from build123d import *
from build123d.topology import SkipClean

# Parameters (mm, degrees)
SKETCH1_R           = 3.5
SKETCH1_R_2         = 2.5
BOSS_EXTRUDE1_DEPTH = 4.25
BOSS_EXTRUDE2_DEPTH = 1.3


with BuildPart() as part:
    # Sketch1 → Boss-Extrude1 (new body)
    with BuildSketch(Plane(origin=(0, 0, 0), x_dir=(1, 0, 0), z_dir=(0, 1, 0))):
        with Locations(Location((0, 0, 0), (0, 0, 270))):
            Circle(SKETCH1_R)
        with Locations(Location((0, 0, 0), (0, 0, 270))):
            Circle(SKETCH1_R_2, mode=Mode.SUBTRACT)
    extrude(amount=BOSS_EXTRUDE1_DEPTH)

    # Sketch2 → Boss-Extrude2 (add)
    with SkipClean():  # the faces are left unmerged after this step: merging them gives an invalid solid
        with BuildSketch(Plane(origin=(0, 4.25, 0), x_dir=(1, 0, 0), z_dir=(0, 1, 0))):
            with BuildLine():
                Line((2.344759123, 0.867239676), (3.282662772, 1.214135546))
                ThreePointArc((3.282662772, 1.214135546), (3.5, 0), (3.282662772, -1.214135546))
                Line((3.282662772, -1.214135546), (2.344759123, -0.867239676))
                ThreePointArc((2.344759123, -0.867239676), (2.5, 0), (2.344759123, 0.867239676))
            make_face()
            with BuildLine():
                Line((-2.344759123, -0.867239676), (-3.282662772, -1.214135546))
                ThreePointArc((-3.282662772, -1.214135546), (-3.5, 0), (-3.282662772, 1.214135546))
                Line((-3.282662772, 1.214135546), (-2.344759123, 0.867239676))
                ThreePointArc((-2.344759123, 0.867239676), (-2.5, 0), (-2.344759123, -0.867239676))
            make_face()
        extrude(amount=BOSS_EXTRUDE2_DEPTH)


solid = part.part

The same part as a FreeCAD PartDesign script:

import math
import FreeCAD as App
import Part
import Sketcher

doc = App.newDocument("Part")
body = doc.addObject("PartDesign::Body", "Body")

# Sketch on XZ plane
sketch1 = doc.addObject("Sketcher::SketchObject", "Sketch")
body.addObject(sketch1)
sketch1.AttachmentSupport = (doc.XZ_Plane, [""])
sketch1.MapMode = "FlatFace"
sketch1.addGeometry(Part.Circle(App.Vector(0, 0, 0), App.Vector(0, 0, 1), 3.5), False)
sketch1.addGeometry(Part.Circle(App.Vector(0, 0, 0), App.Vector(0, 0, 1), 2.5), False)
sketch1.addConstraint(Sketcher.Constraint("Coincident", 0, 3, -1, 1))
sketch1.addConstraint(Sketcher.Constraint("Coincident", 1, 3, -1, 1))
sketch1.addConstraint(Sketcher.Constraint("Diameter", 0, 7.0))
sketch1.addConstraint(Sketcher.Constraint("Diameter", 1, 5.0))
pad1 = doc.addObject("PartDesign::Pad", "Pad")
body.addObject(pad1)
pad1.Profile = sketch1
pad1.Length = 4.25
pad1.Reversed = True

# Sketch on XZ plane
sketch2 = doc.addObject("Sketcher::SketchObject", "Sketch001")
body.addObject(sketch2)
sketch2.AttachmentSupport = (doc.XZ_Plane, [""])
sketch2.MapMode = "FlatFace"
sketch2.AttachmentOffset = App.Placement(App.Vector(0, 0, -4.25), App.Rotation())
sketch2.addGeometry(Part.LineSegment(App.Vector(3.3, -1.2, 0), App.Vector(2.3, -0.9, 0)), False)
sketch2.addGeometry(Part.ArcOfCircle(Part.Circle(App.Vector(0, 0, 0), App.Vector(0, 0, 1), 2.5), math.radians(-20), math.radians(20)), False)
sketch2.addGeometry(Part.LineSegment(App.Vector(2.3, 0.9, 0), App.Vector(3.3, 1.2, 0)), False)
sketch2.addGeometry(Part.ArcOfCircle(Part.Circle(App.Vector(0, 0, 0), App.Vector(0, 0, 1), 3.5), math.radians(-20), math.radians(20)), False)
sketch2.addGeometry(Part.LineSegment(App.Vector(-3.3, 1.2, 0), App.Vector(-2.3, 0.9, 0)), False)
sketch2.addGeometry(Part.ArcOfCircle(Part.Circle(App.Vector(0, 0, 0), App.Vector(0, 0, 1), 2.5), math.radians(160), math.radians(200)), False)
sketch2.addGeometry(Part.LineSegment(App.Vector(-2.3, -0.9, 0), App.Vector(-3.3, -1.2, 0)), False)
sketch2.addGeometry(Part.ArcOfCircle(Part.Circle(App.Vector(0, 0, 0), App.Vector(0, 0, 1), 3.5), math.radians(160), math.radians(200)), False)
sketch2.addConstraint(Sketcher.Constraint("Coincident", 0, 2, 1, 1))
sketch2.addConstraint(Sketcher.Constraint("Coincident", 1, 2, 2, 1))
sketch2.addConstraint(Sketcher.Constraint("Coincident", 2, 2, 3, 2))
sketch2.addConstraint(Sketcher.Constraint("Coincident", 3, 1, 0, 1))
sketch2.addConstraint(Sketcher.Constraint("Coincident", 4, 2, 5, 1))
sketch2.addConstraint(Sketcher.Constraint("Coincident", 5, 2, 6, 1))
sketch2.addConstraint(Sketcher.Constraint("Coincident", 6, 2, 7, 2))
sketch2.addConstraint(Sketcher.Constraint("Coincident", 7, 1, 4, 1))
sketch2.addConstraint(Sketcher.Constraint("Coincident", 1, 3, -1, 1))
sketch2.addConstraint(Sketcher.Constraint("Coincident", 3, 3, -1, 1))
sketch2.addConstraint(Sketcher.Constraint("Coincident", 5, 3, -1, 1))
sketch2.addConstraint(Sketcher.Constraint("Coincident", 7, 3, -1, 1))
sketch2.addConstraint(Sketcher.Constraint("Equal", 1, 5))
sketch2.addConstraint(Sketcher.Constraint("Equal", 3, 7))
sketch2.addConstraint(Sketcher.Constraint("Parallel", 0, 4))
sketch2.addConstraint(Sketcher.Constraint("Parallel", 2, 6))
sketch2.addConstraint(Sketcher.Constraint("Horizontal", 1, 2, 4, 2))
sketch2.addConstraint(Sketcher.Constraint("Horizontal", 0, 2, 5, 2))
sketch2.addConstraint(Sketcher.Constraint("Horizontal", 3, 1, 6, 2))
sketch2.addConstraint(Sketcher.Constraint("Vertical", 0, 2, 1, 2))
sketch2.addConstraint(Sketcher.Constraint("Radius", 1, 2.5))
sketch2.addConstraint(Sketcher.Constraint("Radius", 3, 3.5))
sketch2.addConstraint(Sketcher.Constraint("DistanceX", -1, 1, 0, 2, 2.344759))
sketch2.addConstraint(Sketcher.Constraint("DistanceY", 3, 1, 2, 2, 2.428271))
pad2 = doc.addObject("PartDesign::Pad", "Pad001")
body.addObject(pad2)
pad2.Profile = sketch2
pad2.Length = 1.3
pad2.Reversed = True

doc.recompute()
